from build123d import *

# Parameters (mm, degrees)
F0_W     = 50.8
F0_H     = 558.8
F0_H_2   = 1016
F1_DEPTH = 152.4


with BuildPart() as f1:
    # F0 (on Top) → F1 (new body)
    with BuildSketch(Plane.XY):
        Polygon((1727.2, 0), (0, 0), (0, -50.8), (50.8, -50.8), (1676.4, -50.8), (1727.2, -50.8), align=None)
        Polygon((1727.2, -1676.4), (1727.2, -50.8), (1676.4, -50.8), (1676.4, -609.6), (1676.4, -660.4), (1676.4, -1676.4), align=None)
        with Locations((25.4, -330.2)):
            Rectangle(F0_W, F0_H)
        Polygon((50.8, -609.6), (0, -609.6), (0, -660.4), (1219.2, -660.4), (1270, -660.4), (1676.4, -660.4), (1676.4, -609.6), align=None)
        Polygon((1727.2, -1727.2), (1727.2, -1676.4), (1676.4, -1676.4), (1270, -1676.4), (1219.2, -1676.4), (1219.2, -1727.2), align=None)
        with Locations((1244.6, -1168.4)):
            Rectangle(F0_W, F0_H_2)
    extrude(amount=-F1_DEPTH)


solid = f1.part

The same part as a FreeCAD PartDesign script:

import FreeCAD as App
import Part
import Sketcher
from FreeCAD import Vector
Q = App.Units.Quantity


def add_polygon(sketch, points):
    """Adds a closed chain of lines whose ends are joined by coincident constraints."""
    first, n = sketch.GeometryCount, len(points)
    for a, b in zip(points, points[1:] + points[:1]):
        sketch.addGeometry(Part.LineSegment(App.Vector(*a, 0), App.Vector(*b, 0)), False)
    for i in range(n):
        sketch.addConstraint(Sketcher.Constraint("Coincident", first + i, 2, first + (i + 1) % n, 1))

doc = App.newDocument("Part")
body = doc.addObject("PartDesign::Body", "Body")

sketch1 = body.newObject("Sketcher::SketchObject", "Sketch")
sketch1.AttachmentSupport = (doc.getObject("XY_Plane"), [""])
sketch1.MapMode = "FlatFace"
add_polygon(sketch1, [(1727.2, 0), (0, 0), (0, -660.4), (1219.2, -660.4), (1219.2, -1727.2), (1727.2, -1727.2)])
add_polygon(sketch1, [(1270, -660.4), (1676.4, -660.4), (1676.4, -1676.4), (1270, -1676.4)])
add_polygon(sketch1, [(50.8, -609.6), (50.8, -50.8), (1676.4, -50.8), (1676.4, -609.6)])
sketch1.addConstraint(Sketcher.Constraint("Horizontal", 0))
sketch1.addConstraint(Sketcher.Constraint("Vertical", 1))
sketch1.addConstraint(Sketcher.Constraint("Horizontal", 2))
sketch1.addConstraint(Sketcher.Constraint("Vertical", 3))
sketch1.addConstraint(Sketcher.Constraint("Horizontal", 4))
sketch1.addConstraint(Sketcher.Constraint("Vertical", 5))
sketch1.addConstraint(Sketcher.Constraint("Horizontal", 6))
sketch1.addConstraint(Sketcher.Constraint("Vertical", 7))
sketch1.addConstraint(Sketcher.Constraint("Horizontal", 8))
sketch1.addConstraint(Sketcher.Constraint("Vertical", 9))
sketch1.addConstraint(Sketcher.Constraint("Vertical", 10))
sketch1.addConstraint(Sketcher.Constraint("Horizontal", 11))
sketch1.addConstraint(Sketcher.Constraint("Vertical", 12))
sketch1.addConstraint(Sketcher.Constraint("Horizontal", 13))
sketch1.addConstraint(Sketcher.Constraint("Coincident", 0, 2, -1, 1))
sketch1.addConstraint(Sketcher.Constraint("Horizontal", 2, 2, 6, 2))
sketch1.addConstraint(Sketcher.Constraint("Vertical", 7, 2, 11, 2))
sketch1.addConstraint(Sketcher.Constraint("Equal", 0, 5))
sketch1.addConstraint(Sketcher.Constraint("DistanceX", 0, 2, 0, 1, Q("68 in")))
sketch1.addConstraint(Sketcher.Constraint("DistanceX", 2, 1, 2, 2, Q("48 in")))
sketch1.addConstraint(Sketcher.Constraint("DistanceX", 6, 1, 6, 2, Q("16 in")))
sketch1.addConstraint(Sketcher.Constraint("DistanceX", 11, 1, 11, 2, Q("64 in")))
sketch1.addConstraint(Sketcher.Constraint("DistanceY", 1, 2, 1, 1, Q("26 in")))
sketch1.addConstraint(Sketcher.Constraint("DistanceY", 7, 2, 7, 1, Q("40 in")))
sketch1.addConstraint(Sketcher.Constraint("DistanceY", 10, 1, 10, 2, Q("22 in")))
sketch1.addConstraint(Sketcher.Constraint("DistanceX", -1, 1, 6, 2, Q("66 in")))
sketch1.addConstraint(Sketcher.Constraint("DistanceY", 10, 2, -1, 1, Q("2 in")))
pad1 = body.newObject("PartDesign::Pad", "Pad")
pad1.Profile = sketch1
pad1.Length = Q("6 in")
pad1.Reversed = True

doc.recompute()
